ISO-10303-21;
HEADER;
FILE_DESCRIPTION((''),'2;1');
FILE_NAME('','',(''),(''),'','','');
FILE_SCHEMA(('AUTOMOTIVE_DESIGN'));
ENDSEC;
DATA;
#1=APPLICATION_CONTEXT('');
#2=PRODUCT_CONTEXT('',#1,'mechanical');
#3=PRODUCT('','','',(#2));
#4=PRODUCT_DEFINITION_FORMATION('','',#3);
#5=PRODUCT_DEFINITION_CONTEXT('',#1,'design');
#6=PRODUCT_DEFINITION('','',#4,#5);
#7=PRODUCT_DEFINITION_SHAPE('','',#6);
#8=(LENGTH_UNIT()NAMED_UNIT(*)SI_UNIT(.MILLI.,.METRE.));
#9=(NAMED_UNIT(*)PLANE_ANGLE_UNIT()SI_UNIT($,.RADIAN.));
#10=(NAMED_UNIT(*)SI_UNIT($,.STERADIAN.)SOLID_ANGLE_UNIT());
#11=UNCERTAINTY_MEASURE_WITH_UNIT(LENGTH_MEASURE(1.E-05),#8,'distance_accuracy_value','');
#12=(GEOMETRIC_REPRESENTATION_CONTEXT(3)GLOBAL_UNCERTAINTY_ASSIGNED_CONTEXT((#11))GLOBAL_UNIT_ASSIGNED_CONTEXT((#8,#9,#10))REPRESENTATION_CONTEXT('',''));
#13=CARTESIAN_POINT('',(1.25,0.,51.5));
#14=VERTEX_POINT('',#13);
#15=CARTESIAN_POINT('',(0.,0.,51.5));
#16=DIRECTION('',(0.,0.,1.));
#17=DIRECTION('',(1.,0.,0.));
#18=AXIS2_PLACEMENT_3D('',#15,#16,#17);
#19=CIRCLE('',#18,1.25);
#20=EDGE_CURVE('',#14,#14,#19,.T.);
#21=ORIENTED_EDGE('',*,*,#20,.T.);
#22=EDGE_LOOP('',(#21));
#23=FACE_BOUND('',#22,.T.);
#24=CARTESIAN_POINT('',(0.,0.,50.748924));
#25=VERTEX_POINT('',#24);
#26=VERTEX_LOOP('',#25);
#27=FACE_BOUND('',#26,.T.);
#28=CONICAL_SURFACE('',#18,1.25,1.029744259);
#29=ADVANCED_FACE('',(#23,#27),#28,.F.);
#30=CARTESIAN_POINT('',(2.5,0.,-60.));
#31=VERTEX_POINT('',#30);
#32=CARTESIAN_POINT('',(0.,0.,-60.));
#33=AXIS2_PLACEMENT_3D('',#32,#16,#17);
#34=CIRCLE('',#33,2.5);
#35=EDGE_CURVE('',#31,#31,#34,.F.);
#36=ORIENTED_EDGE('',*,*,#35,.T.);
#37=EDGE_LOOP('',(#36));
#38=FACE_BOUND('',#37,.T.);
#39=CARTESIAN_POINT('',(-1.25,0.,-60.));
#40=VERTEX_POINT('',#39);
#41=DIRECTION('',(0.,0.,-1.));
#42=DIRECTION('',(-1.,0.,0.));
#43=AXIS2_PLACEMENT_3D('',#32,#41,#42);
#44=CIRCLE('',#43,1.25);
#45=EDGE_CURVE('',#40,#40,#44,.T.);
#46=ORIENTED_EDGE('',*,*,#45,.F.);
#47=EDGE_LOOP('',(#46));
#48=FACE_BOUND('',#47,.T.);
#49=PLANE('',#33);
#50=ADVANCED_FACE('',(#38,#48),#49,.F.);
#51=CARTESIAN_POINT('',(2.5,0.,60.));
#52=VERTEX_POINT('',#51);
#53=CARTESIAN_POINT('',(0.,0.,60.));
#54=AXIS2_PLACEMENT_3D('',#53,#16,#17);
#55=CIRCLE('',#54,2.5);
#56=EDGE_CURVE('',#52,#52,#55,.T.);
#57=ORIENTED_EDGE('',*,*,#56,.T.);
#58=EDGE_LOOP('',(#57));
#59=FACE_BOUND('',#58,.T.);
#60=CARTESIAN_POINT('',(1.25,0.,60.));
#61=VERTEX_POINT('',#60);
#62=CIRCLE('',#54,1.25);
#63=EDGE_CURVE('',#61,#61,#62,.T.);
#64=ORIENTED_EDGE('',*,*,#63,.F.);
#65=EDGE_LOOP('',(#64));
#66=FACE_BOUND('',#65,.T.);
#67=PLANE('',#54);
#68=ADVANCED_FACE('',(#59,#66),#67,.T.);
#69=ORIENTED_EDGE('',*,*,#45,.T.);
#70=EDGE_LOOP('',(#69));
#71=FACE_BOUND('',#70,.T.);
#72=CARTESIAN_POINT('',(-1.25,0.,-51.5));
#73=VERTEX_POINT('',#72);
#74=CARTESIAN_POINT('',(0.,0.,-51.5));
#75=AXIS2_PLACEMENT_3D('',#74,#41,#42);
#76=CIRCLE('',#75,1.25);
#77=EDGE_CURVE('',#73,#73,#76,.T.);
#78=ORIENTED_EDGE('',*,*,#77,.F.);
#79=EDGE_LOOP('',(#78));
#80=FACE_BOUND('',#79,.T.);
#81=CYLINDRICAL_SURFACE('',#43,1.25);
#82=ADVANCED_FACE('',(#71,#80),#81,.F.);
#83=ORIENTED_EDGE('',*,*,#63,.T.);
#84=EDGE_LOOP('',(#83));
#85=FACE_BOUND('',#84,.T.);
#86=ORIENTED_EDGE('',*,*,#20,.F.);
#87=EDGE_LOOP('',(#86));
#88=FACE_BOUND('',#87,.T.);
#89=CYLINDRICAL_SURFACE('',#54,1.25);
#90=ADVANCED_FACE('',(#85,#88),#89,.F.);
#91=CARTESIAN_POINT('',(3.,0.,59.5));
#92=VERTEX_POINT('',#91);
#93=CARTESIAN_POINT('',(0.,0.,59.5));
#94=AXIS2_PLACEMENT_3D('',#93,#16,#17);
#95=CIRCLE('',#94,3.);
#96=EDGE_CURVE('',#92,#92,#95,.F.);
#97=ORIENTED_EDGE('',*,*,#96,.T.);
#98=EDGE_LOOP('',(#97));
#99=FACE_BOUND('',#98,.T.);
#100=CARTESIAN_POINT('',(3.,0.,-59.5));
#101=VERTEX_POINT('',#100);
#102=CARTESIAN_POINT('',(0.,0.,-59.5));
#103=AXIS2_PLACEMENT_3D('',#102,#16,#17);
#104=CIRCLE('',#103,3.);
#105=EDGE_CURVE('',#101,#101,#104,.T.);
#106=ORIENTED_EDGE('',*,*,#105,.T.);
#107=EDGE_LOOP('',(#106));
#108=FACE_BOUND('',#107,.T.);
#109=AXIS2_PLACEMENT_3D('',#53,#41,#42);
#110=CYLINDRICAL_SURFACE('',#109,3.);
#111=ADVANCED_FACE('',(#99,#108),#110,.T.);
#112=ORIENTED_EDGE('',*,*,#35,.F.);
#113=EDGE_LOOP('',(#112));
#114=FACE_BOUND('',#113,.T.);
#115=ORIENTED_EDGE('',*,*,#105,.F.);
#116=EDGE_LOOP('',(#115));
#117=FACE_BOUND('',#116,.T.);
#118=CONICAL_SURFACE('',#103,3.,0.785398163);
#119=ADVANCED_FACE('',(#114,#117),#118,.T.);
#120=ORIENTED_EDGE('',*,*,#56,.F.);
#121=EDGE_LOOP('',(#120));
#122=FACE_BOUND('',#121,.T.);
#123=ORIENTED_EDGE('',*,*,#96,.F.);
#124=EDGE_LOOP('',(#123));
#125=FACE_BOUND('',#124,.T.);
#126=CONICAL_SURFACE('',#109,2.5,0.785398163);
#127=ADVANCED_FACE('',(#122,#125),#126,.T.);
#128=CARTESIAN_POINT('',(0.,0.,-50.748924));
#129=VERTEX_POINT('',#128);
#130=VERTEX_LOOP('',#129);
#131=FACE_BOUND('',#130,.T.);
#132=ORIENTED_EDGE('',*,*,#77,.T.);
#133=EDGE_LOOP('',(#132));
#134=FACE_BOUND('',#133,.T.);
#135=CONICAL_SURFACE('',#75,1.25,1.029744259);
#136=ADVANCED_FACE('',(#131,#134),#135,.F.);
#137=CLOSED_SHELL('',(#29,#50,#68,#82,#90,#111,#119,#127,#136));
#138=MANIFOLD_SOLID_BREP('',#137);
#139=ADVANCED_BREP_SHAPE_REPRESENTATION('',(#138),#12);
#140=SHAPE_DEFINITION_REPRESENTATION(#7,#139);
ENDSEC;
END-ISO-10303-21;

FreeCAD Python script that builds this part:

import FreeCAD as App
import Part
import Sketcher
Q = App.Units.Quantity


def edges_at(feature, points):
    """Names of the edges that pass closest to the given points."""
    edges = feature.Shape.Edges
    near = lambda p: min(range(len(edges)), key=lambda i: edges[i].distToShape(Part.Vertex(*p))[0])
    return sorted({f"Edge{near(p) + 1}" for p in points})

doc = App.newDocument("Part")
body = doc.addObject("PartDesign::Body", "Body")

# Sketch on XY plane
sketch1 = doc.addObject("Sketcher::SketchObject", "Sketch")
body.addObject(sketch1)
sketch1.AttachmentSupport = (doc.XY_Plane, [""])
sketch1.MapMode = "FlatFace"
sketch1.addGeometry(Part.Circle(App.Vector(0, 0, 0), App.Vector(0, 0, 1), 3), False)
sketch1.addConstraint([
    Sketcher.Constraint("Coincident", 0, 3, -1, 1),
    Sketcher.Constraint("Diameter", 0, Q("6 mm")),
])
pad1 = doc.addObject("PartDesign::Pad", "Pad")
body.addObject(pad1)
pad1.Profile = sketch1
pad1.Length = 120
pad1.Midplane = True
doc.recompute()

chamfer = doc.addObject("PartDesign::Chamfer", "Chamfer")
body.addObject(chamfer)
chamfer.Base = (pad1, edges_at(pad1, [(-3, 0, -60), (-3, 0, 60)]))
chamfer.Size = 0.5

# Sketch on YZ plane
sketch2 = doc.addObject("Sketcher::SketchObject", "Sketch001")
body.addObject(sketch2)
sketch2.AttachmentSupport = (doc.YZ_Plane, [""])
sketch2.MapMode = "FlatFace"
sketch2.addGeometry([
    Part.LineSegment(App.Vector(0, 50.7, 0), App.Vector(0, 60, 0)),
    Part.LineSegment(App.Vector(0, 60, 0), App.Vector(-1.2, 60, 0)),
    Part.LineSegment(App.Vector(-1.2, 60, 0), App.Vector(-1.2, 51.5, 0)),
    Part.LineSegment(App.Vector(-1.2, 51.5, 0), App.Vector(0, 50.7, 0)),
], False)
sketch2.addConstraint([
    Sketcher.Constraint("Coincident", 0, 2, 1, 1),
    Sketcher.Constraint("Coincident", 1, 2, 2, 1),
    Sketcher.Constraint("Coincident", 2, 2, 3, 1),
    Sketcher.Constraint("Coincident", 3, 2, 0, 1),
    Sketcher.Constraint("Vertical", 0),
    Sketcher.Constraint("Horizontal", 1),
    Sketcher.Constraint("Vertical", 2),
    Sketcher.Constraint("PointOnObject", 0, 2, -2),
    Sketcher.Constraint("Angle", 3, Q("-31 deg")),
    Sketcher.Constraint("DistanceY", 2, 2, 2, 1, Q("8.5 mm")),
    Sketcher.Constraint("DistanceY", -1, 1, 0, 2, Q("60 mm")),
    Sketcher.Constraint("DistanceX", 1, 2, 1, 1, Q("1.25 mm")),
])
groove = doc.addObject("PartDesign::Groove", "Groove")
body.addObject(groove)
groove.Profile = sketch2
groove.ReferenceAxis = (sketch2, ["V_Axis"])
groove.Angle = 360
doc.recompute()

mirrored = doc.addObject("PartDesign::Mirrored", "Mirrored")
body.addObject(mirrored)
mirrored.Originals = [groove]
mirrored.MirrorPlane = (doc.XY_Plane, [""])
body.Tip = mirrored

doc.recompute()
